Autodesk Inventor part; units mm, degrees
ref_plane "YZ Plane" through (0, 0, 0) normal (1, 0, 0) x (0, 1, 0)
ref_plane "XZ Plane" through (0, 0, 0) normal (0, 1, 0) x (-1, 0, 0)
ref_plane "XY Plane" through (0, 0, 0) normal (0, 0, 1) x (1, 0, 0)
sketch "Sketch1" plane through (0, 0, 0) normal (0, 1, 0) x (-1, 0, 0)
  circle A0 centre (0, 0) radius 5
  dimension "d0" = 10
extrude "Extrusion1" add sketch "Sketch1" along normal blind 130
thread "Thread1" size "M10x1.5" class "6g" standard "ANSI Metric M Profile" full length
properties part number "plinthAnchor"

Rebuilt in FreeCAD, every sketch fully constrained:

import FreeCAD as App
import Part
import Sketcher

V = App.Vector
Q = App.Units.Quantity

doc = App.newDocument("Part")
body = doc.addObject("PartDesign::Body", "Body")

sketch1 = body.newObject("Sketcher::SketchObject", "Sketch")
sketch1.AttachmentSupport = (doc.getObject("XZ_Plane"), [""])
sketch1.MapMode = "FlatFace"
sketch1.addGeometry(Part.Circle(V(0, 0, 0), V(0, 0, 1), 5), False)
sketch1.addConstraint(Sketcher.Constraint("Coincident", 0, 3, -1, 1))
sketch1.addConstraint(Sketcher.Constraint("Diameter", 0, Q("10 mm")))
pad1 = body.newObject("PartDesign::Pad", "Pad")
pad1.Profile = sketch1
pad1.Length = 130
pad1.Reversed = True

doc.recompute()
